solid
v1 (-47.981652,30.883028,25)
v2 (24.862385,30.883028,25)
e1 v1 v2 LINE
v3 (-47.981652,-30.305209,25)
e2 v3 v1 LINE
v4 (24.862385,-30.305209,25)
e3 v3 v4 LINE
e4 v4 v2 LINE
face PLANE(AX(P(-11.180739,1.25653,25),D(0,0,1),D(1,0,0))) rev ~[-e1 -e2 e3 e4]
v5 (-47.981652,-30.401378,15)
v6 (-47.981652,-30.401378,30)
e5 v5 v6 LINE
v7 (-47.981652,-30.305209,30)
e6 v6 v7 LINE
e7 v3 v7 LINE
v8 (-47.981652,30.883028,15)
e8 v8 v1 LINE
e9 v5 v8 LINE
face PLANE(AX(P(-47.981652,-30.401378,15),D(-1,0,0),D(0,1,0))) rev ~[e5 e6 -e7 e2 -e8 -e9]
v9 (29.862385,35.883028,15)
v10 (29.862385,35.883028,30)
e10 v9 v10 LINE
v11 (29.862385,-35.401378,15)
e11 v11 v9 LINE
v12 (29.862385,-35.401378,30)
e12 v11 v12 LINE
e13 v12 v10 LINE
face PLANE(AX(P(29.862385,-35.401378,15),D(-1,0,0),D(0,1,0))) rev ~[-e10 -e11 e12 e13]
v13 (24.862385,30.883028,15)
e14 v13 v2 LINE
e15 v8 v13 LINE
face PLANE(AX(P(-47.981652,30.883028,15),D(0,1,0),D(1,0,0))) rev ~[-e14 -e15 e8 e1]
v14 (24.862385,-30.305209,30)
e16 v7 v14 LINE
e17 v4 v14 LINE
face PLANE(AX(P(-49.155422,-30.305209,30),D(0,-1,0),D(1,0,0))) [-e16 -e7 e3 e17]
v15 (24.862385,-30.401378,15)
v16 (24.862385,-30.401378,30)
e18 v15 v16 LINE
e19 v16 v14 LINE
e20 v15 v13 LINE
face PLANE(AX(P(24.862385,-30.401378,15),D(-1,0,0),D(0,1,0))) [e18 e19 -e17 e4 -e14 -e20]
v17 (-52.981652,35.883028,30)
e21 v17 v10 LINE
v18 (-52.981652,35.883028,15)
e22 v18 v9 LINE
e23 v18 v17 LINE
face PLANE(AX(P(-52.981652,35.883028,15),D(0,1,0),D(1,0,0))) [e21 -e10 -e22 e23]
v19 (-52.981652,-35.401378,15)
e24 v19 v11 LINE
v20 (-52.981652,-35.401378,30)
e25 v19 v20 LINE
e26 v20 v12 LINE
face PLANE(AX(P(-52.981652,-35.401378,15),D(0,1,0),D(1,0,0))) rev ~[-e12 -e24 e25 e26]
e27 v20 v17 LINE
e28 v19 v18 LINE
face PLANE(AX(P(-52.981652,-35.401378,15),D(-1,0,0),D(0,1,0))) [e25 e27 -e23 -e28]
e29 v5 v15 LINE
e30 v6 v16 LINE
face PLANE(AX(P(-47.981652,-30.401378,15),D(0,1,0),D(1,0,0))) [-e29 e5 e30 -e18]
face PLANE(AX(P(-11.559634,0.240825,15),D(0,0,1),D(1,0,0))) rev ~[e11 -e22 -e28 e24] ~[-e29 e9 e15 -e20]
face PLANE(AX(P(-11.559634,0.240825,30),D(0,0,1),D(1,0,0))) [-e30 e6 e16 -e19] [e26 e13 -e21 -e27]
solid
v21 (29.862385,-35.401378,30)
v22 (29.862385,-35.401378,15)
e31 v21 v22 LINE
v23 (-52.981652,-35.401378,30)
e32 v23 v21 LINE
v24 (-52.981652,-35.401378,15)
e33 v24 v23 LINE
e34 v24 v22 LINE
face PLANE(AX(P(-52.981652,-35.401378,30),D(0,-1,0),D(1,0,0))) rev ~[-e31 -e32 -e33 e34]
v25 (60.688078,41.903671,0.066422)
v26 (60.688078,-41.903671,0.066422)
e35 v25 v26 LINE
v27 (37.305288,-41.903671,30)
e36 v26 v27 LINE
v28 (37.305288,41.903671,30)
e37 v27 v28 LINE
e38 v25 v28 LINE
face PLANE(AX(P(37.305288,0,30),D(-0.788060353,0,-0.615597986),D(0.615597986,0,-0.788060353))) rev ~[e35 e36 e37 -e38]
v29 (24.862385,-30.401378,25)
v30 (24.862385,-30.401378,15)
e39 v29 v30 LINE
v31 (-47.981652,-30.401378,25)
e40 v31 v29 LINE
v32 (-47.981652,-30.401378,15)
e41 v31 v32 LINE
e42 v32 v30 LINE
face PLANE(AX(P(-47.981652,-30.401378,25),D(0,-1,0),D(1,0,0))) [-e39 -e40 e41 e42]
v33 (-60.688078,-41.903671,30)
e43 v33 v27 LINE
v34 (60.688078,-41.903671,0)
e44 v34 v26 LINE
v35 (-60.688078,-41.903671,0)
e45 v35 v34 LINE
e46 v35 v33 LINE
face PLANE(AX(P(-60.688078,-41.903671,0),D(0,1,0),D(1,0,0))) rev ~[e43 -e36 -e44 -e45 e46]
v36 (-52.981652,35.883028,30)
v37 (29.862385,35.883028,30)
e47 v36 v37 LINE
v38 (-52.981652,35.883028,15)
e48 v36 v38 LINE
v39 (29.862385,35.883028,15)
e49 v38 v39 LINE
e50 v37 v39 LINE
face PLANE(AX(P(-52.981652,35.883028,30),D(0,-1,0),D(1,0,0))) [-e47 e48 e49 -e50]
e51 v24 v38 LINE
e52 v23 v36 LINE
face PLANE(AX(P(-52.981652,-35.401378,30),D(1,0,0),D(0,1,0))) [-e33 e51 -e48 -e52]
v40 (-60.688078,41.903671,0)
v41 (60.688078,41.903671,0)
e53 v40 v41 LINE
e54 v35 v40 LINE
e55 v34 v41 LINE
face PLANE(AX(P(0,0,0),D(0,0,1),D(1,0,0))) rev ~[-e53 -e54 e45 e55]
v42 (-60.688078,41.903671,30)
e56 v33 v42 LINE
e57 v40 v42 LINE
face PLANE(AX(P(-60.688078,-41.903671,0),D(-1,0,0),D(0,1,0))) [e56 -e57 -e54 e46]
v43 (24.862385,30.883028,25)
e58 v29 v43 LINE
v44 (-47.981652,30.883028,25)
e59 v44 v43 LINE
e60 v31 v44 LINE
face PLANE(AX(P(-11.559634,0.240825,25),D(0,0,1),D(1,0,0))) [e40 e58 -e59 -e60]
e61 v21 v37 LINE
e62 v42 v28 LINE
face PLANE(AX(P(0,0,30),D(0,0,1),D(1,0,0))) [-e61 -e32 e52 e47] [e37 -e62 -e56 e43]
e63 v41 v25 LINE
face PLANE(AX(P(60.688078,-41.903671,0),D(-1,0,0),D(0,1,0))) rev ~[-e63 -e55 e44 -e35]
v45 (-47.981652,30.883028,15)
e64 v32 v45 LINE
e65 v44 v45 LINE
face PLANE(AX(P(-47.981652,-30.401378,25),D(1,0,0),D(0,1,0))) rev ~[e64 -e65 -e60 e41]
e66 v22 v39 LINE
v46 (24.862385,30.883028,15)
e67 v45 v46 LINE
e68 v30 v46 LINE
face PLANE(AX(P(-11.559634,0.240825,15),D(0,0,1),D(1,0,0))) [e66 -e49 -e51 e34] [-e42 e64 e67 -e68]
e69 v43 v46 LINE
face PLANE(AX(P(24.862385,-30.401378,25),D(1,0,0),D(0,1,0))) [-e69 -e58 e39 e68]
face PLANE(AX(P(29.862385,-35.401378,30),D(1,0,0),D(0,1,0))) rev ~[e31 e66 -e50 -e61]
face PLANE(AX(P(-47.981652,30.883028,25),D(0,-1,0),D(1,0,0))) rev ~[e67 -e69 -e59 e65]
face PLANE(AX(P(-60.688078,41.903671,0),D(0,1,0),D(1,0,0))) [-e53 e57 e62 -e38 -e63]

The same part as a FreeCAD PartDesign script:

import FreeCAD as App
import Part
import Sketcher

V = App.Vector
Q = App.Units.Quantity


def add_polygon(sketch, points):
    """Adds a closed chain of lines whose ends are joined by coincident constraints."""
    first, n = sketch.GeometryCount, len(points)
    for a, b in zip(points, points[1:] + points[:1]):
        sketch.addGeometry(Part.LineSegment(App.Vector(*a, 0), App.Vector(*b, 0)), False)
    for i in range(n):
        sketch.addConstraint(Sketcher.Constraint("Coincident", first + i, 2, first + (i + 1) % n, 1))

doc = App.newDocument("Part")
params = doc.addObject("Spreadsheet::Sheet", "Params")
for row, (alias, value) in enumerate([
    ("pad1_length", "30 mm"),
    ("pocket1_length", "500 mm"),
    ("pocket2_length", "5 mm"),
    ("pocket3_length", "10 mm"),
    ("pad2_length", "15 mm"),
    ("pad3_length", "5 mm"),
], start=1):
    params.set(f"A{row}", alias)
    params.set(f"B{row}", "=" + value)
    params.setAlias(f"B{row}", alias)

body = doc.addObject("PartDesign::Body", "Body")

# Sketch on XY plane
sketch1 = body.newObject("Sketcher::SketchObject", "Sketch")
sketch1.AttachmentSupport = (doc.getObject("XY_Plane"), [""])
sketch1.MapMode = "FlatFace"
add_polygon(sketch1, [(-61, 42), (-61, -42), (61, -42), (61, 42)])  # lines 0-3
sketch1.addConstraint(Sketcher.Constraint("Vertical", 0))
sketch1.addConstraint(Sketcher.Constraint("Horizontal", 1))
sketch1.addConstraint(Sketcher.Constraint("Vertical", 2))
sketch1.addConstraint(Sketcher.Constraint("Horizontal", 3))
sketch1.addConstraint(Sketcher.Constraint("Symmetric", 0, 2, 2, 2, -1, 1))
sketch1.addConstraint(Sketcher.Constraint("DistanceY", 0, 2, 0, 1, Q("83.807342 mm")))
sketch1.addConstraint(Sketcher.Constraint("DistanceX", 1, 1, 1, 2, Q("121.376157 mm")))
pad1 = body.newObject("PartDesign::Pad", "Pad")
pad1.Profile = sketch1
pad1.setExpression("Length", "Params.pad1_length")

# Sketch on XZ plane
sketch2 = body.newObject("Sketcher::SketchObject", "Sketch001")
sketch2.AttachmentSupport = (doc.getObject("XZ_Plane"), [""])
sketch2.MapMode = "FlatFace"
add_polygon(sketch2, [(60.69, 0), (60.74, 0), (60.69, 0.07)])  # lines 0-2
add_polygon(sketch2, [(37.31, 30), (60.69, 0.07), (60.69, 30)])  # lines 3-5
sketch2.addConstraint(Sketcher.Constraint("Horizontal", 0))
sketch2.addConstraint(Sketcher.Constraint("Vertical", 2))
sketch2.addConstraint(Sketcher.Constraint("Vertical", 4))
sketch2.addConstraint(Sketcher.Constraint("Horizontal", 5))
sketch2.addConstraint(Sketcher.Constraint("Coincident", 3, 2, 1, 2))
sketch2.addConstraint(Sketcher.Constraint("PointOnObject", 0, 2, -1))
sketch2.addConstraint(Sketcher.Constraint("Parallel", 1, 3))
sketch2.addConstraint(Sketcher.Constraint("DistanceY", -1, 1, 4, 2, Q("30 mm")))
sketch2.addConstraint(Sketcher.Constraint("DistanceX", 5, 2, 5, 1, Q("23.382791 mm")))
sketch2.addConstraint(Sketcher.Constraint("DistanceY", 2, 2, 2, 1, Q("0.066422 mm")))
sketch2.addConstraint(Sketcher.Constraint("DistanceX", -1, 1, 1, 2, Q("60.688078 mm")))
pocket1 = body.newObject("PartDesign::Pocket", "Pocket")
pocket1.Profile = sketch2
pocket1.setExpression("Length", "Params.pocket1_length")
pocket1.Midplane = True

# Sketch on XY plane
sketch3 = body.newObject("Sketcher::SketchObject", "Sketch002")
sketch3.AttachmentSupport = (doc.getObject("XY_Plane"), [""])
sketch3.MapMode = "FlatFace"
sketch3.AttachmentOffset = App.Placement(V(0, 0, 30), App.Rotation())
add_polygon(sketch3, [(-53, 36), (-53, -35), (30, -35), (30, 36)])  # lines 0-3
sketch3.addConstraint(Sketcher.Constraint("Vertical", 0))
sketch3.addConstraint(Sketcher.Constraint("Horizontal", 1))
sketch3.addConstraint(Sketcher.Constraint("Vertical", 2))
sketch3.addConstraint(Sketcher.Constraint("Horizontal", 3))
sketch3.addConstraint(Sketcher.Constraint("DistanceX", 1, 1, 1, 2, Q("82.844038 mm")))
sketch3.addConstraint(Sketcher.Constraint("DistanceY", 0, 2, 0, 1, Q("71.284406 mm")))
sketch3.addConstraint(Sketcher.Constraint("DistanceY", -1, 1, 2, 2, Q("35.883028 mm")))
sketch3.addConstraint(Sketcher.Constraint("DistanceX", 0, 2, -1, 1, Q("52.981652 mm")))
pocket2 = body.newObject("PartDesign::Pocket", "Pocket001")
pocket2.Profile = sketch3
pocket2.setExpression("Length", "Params.pocket2_length")

# Sketch on XY plane
sketch4 = body.newObject("Sketcher::SketchObject", "Sketch003")
sketch4.AttachmentSupport = (doc.getObject("XY_Plane"), [""])
sketch4.MapMode = "FlatFace"
sketch4.AttachmentOffset = App.Placement(V(0, 0, 25), App.Rotation())
add_polygon(sketch4, [(-53, 36), (-53, -35), (30, -35), (30, 36)])  # lines 0-3
add_polygon(sketch4, [(25, -30), (-48, -30), (-48, 31), (25, 31)])  # lines 4-7
sketch4.addConstraint(Sketcher.Constraint("Vertical", 0))
sketch4.addConstraint(Sketcher.Constraint("Horizontal", 1))
sketch4.addConstraint(Sketcher.Constraint("Vertical", 2))
sketch4.addConstraint(Sketcher.Constraint("Horizontal", 3))
sketch4.addConstraint(Sketcher.Constraint("Horizontal", 4))
sketch4.addConstraint(Sketcher.Constraint("Vertical", 5))
sketch4.addConstraint(Sketcher.Constraint("Horizontal", 6))
sketch4.addConstraint(Sketcher.Constraint("Vertical", 7))
sketch4.addConstraint(Sketcher.Constraint("DistanceX", 0, 2, 4, 2, Q("5 mm")))
sketch4.addConstraint(Sketcher.Constraint("DistanceY", 0, 2, 4, 2, Q("5 mm")))
sketch4.addConstraint(Sketcher.Constraint("DistanceY", 5, 2, 3, 2, Q("5 mm")))
sketch4.addConstraint(Sketcher.Constraint("DistanceX", 6, 2, 2, 2, Q("5 mm")))
sketch4.addConstraint(Sketcher.Constraint("DistanceX", 1, 1, 1, 2, Q("82.844038 mm")))
sketch4.addConstraint(Sketcher.Constraint("DistanceY", 0, 2, 0, 1, Q("71.284406 mm")))
sketch4.addConstraint(Sketcher.Constraint("DistanceY", -1, 1, 2, 2, Q("35.883028 mm")))
sketch4.addConstraint(Sketcher.Constraint("DistanceX", 0, 2, -1, 1, Q("52.981652 mm")))
pocket3 = body.newObject("PartDesign::Pocket", "Pocket002")
pocket3.Profile = sketch4
pocket3.setExpression("Length", "Params.pocket3_length")
body2 = doc.addObject("PartDesign::Body", "Body001")

# Sketch on XY plane
sketch5 = body2.newObject("Sketcher::SketchObject", "Sketch004")
sketch5.AttachmentSupport = (doc.getObject("XY_Plane001"), [""])
sketch5.MapMode = "FlatFace"
sketch5.AttachmentOffset = App.Placement(V(0, 0, 15), App.Rotation())
add_polygon(sketch5, [(-53, 36), (-53, -35), (30, -35), (30, 36)])  # lines 0-3
add_polygon(sketch5, [(25, -30), (-48, -30), (-48, 31), (25, 31)])  # lines 4-7
sketch5.addConstraint(Sketcher.Constraint("Vertical", 0))
sketch5.addConstraint(Sketcher.Constraint("Horizontal", 1))
sketch5.addConstraint(Sketcher.Constraint("Vertical", 2))
sketch5.addConstraint(Sketcher.Constraint("Horizontal", 3))
sketch5.addConstraint(Sketcher.Constraint("Horizontal", 4))
sketch5.addConstraint(Sketcher.Constraint("Vertical", 5))
sketch5.addConstraint(Sketcher.Constraint("Horizontal", 6))
sketch5.addConstraint(Sketcher.Constraint("Vertical", 7))
sketch5.addConstraint(Sketcher.Constraint("DistanceX", 0, 2, 4, 2, Q("5 mm")))
sketch5.addConstraint(Sketcher.Constraint("DistanceY", 0, 2, 4, 2, Q("5 mm")))
sketch5.addConstraint(Sketcher.Constraint("DistanceY", 5, 2, 3, 2, Q("5 mm")))
sketch5.addConstraint(Sketcher.Constraint("DistanceX", 6, 2, 2, 2, Q("5 mm")))
sketch5.addConstraint(Sketcher.Constraint("DistanceX", 1, 1, 1, 2, Q("82.844038 mm")))
sketch5.addConstraint(Sketcher.Constraint("DistanceY", 0, 2, 0, 1, Q("71.284406 mm")))
sketch5.addConstraint(Sketcher.Constraint("DistanceY", -1, 1, 2, 2, Q("35.883028 mm")))
sketch5.addConstraint(Sketcher.Constraint("DistanceX", 0, 2, -1, 1, Q("52.981652 mm")))
pad2 = body2.newObject("PartDesign::Pad", "Pad001")
pad2.Profile = sketch5
pad2.setExpression("Length", "Params.pad2_length")

# Sketch on XY plane
sketch6 = body2.newObject("Sketcher::SketchObject", "Sketch005")
sketch6.AttachmentSupport = (doc.getObject("XY_Plane001"), [""])
sketch6.MapMode = "FlatFace"
sketch6.AttachmentOffset = App.Placement(V(0, 0, 30), App.Rotation())
add_polygon(sketch6, [(-49, 33), (-49, -30), (27, -30), (27, 33)])  # lines 0-3
sketch6.addConstraint(Sketcher.Constraint("Vertical", 0))
sketch6.addConstraint(Sketcher.Constraint("Horizontal", 1))
sketch6.addConstraint(Sketcher.Constraint("Vertical", 2))
sketch6.addConstraint(Sketcher.Constraint("Horizontal", 3))
sketch6.addConstraint(Sketcher.Constraint("DistanceX", 1, 1, 1, 2, Q("75.949365 mm")))
sketch6.addConstraint(Sketcher.Constraint("DistanceY", 0, 2, 0, 1, Q("63.123478 mm")))
sketch6.addConstraint(Sketcher.Constraint("DistanceX", 0, 2, -1, 1, Q("49.155422 mm")))
sketch6.addConstraint(Sketcher.Constraint("DistanceY", 0, 2, -1, 1, Q("30.305209 mm")))
pad3 = body2.newObject("PartDesign::Pad", "Pad002")
pad3.Profile = sketch6
pad3.setExpression("Length", "Params.pad3_length")
pad3.Reversed = True

doc.recompute()
